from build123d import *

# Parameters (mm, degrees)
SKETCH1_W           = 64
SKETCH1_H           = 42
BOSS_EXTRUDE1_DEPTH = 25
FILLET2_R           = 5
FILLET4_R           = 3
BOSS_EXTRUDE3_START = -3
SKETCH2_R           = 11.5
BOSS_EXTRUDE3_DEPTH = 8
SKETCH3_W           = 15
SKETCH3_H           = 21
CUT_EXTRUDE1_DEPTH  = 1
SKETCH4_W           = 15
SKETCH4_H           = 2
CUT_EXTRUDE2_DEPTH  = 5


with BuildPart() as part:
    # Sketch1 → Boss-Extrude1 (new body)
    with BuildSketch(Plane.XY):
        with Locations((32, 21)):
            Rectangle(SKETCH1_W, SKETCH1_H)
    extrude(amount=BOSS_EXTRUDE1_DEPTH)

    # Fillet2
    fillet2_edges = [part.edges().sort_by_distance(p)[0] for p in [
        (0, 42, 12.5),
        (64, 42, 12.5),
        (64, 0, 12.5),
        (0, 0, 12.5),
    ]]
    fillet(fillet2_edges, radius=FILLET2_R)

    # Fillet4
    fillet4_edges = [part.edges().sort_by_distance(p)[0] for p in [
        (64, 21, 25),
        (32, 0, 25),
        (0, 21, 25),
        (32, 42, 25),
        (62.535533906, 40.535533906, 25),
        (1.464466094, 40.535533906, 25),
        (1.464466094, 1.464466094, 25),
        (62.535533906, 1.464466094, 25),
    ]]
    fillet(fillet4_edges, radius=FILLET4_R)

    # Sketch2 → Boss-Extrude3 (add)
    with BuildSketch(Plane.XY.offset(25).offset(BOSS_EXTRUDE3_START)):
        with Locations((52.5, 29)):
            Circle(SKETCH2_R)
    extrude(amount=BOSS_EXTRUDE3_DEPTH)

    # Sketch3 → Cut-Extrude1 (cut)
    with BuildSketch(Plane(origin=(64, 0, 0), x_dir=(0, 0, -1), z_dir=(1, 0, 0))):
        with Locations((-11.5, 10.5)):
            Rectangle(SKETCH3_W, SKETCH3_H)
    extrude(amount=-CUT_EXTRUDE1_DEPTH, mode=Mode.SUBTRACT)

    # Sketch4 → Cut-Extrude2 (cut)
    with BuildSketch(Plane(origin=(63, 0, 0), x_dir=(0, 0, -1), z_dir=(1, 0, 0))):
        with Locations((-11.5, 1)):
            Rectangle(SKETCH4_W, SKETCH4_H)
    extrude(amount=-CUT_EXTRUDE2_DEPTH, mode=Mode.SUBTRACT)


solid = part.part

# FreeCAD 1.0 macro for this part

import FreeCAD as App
import Part
import Sketcher
Q = App.Units.Quantity


def edges_at(feature, points):
    """Names of the edges that pass closest to the given points."""
    edges = feature.Shape.Edges
    near = lambda p: min(range(len(edges)), key=lambda i: edges[i].distToShape(Part.Vertex(*p))[0])
    return sorted({f"Edge{near(p) + 1}" for p in points})


def add_polygon(sketch, points):
    """Adds a closed chain of lines whose ends are joined by coincident constraints."""
    first, n = sketch.GeometryCount, len(points)
    for a, b in zip(points, points[1:] + points[:1]):
        sketch.addGeometry(Part.LineSegment(App.Vector(*a, 0), App.Vector(*b, 0)), False)
    for i in range(n):
        sketch.addConstraint(Sketcher.Constraint("Coincident", first + i, 2, first + (i + 1) % n, 1))

doc = App.newDocument("Part")
body = doc.addObject("PartDesign::Body", "Body")

sketch1 = doc.addObject("Sketcher::SketchObject", "Sketch")
body.addObject(sketch1)
sketch1.AttachmentSupport = (doc.XY_Plane, [""])
sketch1.MapMode = "FlatFace"
add_polygon(sketch1, [(0, 42), (0, 0), (64, 0), (64, 42)])
sketch1.addConstraint(Sketcher.Constraint("Vertical", 0))
sketch1.addConstraint(Sketcher.Constraint("Horizontal", 1))
sketch1.addConstraint(Sketcher.Constraint("Vertical", 2))
sketch1.addConstraint(Sketcher.Constraint("Horizontal", 3))
sketch1.addConstraint(Sketcher.Constraint("Coincident", 0, 2, -1, 1))
sketch1.addConstraint(Sketcher.Constraint("DistanceX", 1, 1, 1, 2, Q("64 mm")))
sketch1.addConstraint(Sketcher.Constraint("DistanceY", 0, 2, 0, 1, Q("42 mm")))
pad1 = doc.addObject("PartDesign::Pad", "Pad")
body.addObject(pad1)
pad1.Profile = sketch1
pad1.Length = 25
doc.recompute()

fillet = doc.addObject("PartDesign::Fillet", "Fillet")
body.addObject(fillet)
fillet.Base = (pad1, edges_at(pad1, [
    (0, 42, 12.5),
    (64, 42, 12.5),
    (64, 0, 12.5),
    (0, 0, 12.5),
]))
fillet.Radius = 5
doc.recompute()

fillet2 = doc.addObject("PartDesign::Fillet", "Fillet001")
body.addObject(fillet2)
fillet2.Base = (fillet, edges_at(fillet, [
    (64, 21, 25),
    (32, 0, 25),
    (0, 21, 25),
    (32, 42, 25),
    (62.536, 40.536, 25),
    (1.464, 40.536, 25),
    (1.464, 1.464, 25),
    (62.536, 1.464, 25),
]))
fillet2.Radius = 3

sketch2 = doc.addObject("Sketcher::SketchObject", "Sketch001")
body.addObject(sketch2)
sketch2.AttachmentSupport = (doc.XY_Plane, [""])
sketch2.MapMode = "FlatFace"
sketch2.AttachmentOffset = App.Placement(App.Vector(0, 0, 22), App.Rotation())
sketch2.addGeometry(Part.Circle(App.Vector(52, 29, 0), App.Vector(0, 0, 1), 12), False)
sketch2.addConstraint(Sketcher.Constraint("Diameter", 0, Q("23 mm")))
sketch2.addConstraint(Sketcher.Constraint("DistanceY", -1, 1, 0, 3, Q("29 mm")))
sketch2.addConstraint(Sketcher.Constraint("DistanceX", -1, 1, 0, 3, Q("52.5 mm")))
pad2 = doc.addObject("PartDesign::Pad", "Pad001")
body.addObject(pad2)
pad2.Profile = sketch2
pad2.Length = 8

sketch3 = doc.addObject("Sketcher::SketchObject", "Sketch002")
body.addObject(sketch3)
sketch3.AttachmentSupport = (doc.YZ_Plane, [""])
sketch3.MapMode = "FlatFace"
sketch3.AttachmentOffset = App.Placement(App.Vector(0, 0, 64), App.Rotation())
add_polygon(sketch3, [(21, 19), (0, 19), (0, 4), (21, 4)])
sketch3.addConstraint(Sketcher.Constraint("Horizontal", 0))
sketch3.addConstraint(Sketcher.Constraint("Vertical", 1))
sketch3.addConstraint(Sketcher.Constraint("Horizontal", 2))
sketch3.addConstraint(Sketcher.Constraint("Vertical", 3))
sketch3.addConstraint(Sketcher.Constraint("PointOnObject", 0, 2, -2))
sketch3.addConstraint(Sketcher.Constraint("DistanceX", 0, 2, 0, 1, Q("21 mm")))
sketch3.addConstraint(Sketcher.Constraint("DistanceY", 1, 2, 1, 1, Q("15 mm")))
sketch3.addConstraint(Sketcher.Constraint("DistanceY", -1, 1, 0, 2, Q("19 mm")))
pocket1 = doc.addObject("PartDesign::Pocket", "Pocket")
body.addObject(pocket1)
pocket1.Profile = sketch3
pocket1.Length = 1

sketch4 = doc.addObject("Sketcher::SketchObject", "Sketch003")
body.addObject(sketch4)
sketch4.AttachmentSupport = (doc.YZ_Plane, [""])
sketch4.MapMode = "FlatFace"
sketch4.AttachmentOffset = App.Placement(App.Vector(0, 0, 63), App.Rotation())
add_polygon(sketch4, [(2, 19), (0, 19), (0, 4), (2, 4)])
sketch4.addConstraint(Sketcher.Constraint("Horizontal", 0))
sketch4.addConstraint(Sketcher.Constraint("Vertical", 1))
sketch4.addConstraint(Sketcher.Constraint("Horizontal", 2))
sketch4.addConstraint(Sketcher.Constraint("Vertical", 3))
sketch4.addConstraint(Sketcher.Constraint("PointOnObject", 0, 2, -2))
sketch4.addConstraint(Sketcher.Constraint("DistanceX", 0, 2, 0, 1, Q("2 mm")))
sketch4.addConstraint(Sketcher.Constraint("DistanceY", 1, 2, 1, 1, Q("15 mm")))
sketch4.addConstraint(Sketcher.Constraint("DistanceY", -1, 1, 0, 2, Q("19 mm")))
pocket2 = doc.addObject("PartDesign::Pocket", "Pocket001")
body.addObject(pocket2)
pocket2.Profile = sketch4
pocket2.Length = 5

doc.recompute()
